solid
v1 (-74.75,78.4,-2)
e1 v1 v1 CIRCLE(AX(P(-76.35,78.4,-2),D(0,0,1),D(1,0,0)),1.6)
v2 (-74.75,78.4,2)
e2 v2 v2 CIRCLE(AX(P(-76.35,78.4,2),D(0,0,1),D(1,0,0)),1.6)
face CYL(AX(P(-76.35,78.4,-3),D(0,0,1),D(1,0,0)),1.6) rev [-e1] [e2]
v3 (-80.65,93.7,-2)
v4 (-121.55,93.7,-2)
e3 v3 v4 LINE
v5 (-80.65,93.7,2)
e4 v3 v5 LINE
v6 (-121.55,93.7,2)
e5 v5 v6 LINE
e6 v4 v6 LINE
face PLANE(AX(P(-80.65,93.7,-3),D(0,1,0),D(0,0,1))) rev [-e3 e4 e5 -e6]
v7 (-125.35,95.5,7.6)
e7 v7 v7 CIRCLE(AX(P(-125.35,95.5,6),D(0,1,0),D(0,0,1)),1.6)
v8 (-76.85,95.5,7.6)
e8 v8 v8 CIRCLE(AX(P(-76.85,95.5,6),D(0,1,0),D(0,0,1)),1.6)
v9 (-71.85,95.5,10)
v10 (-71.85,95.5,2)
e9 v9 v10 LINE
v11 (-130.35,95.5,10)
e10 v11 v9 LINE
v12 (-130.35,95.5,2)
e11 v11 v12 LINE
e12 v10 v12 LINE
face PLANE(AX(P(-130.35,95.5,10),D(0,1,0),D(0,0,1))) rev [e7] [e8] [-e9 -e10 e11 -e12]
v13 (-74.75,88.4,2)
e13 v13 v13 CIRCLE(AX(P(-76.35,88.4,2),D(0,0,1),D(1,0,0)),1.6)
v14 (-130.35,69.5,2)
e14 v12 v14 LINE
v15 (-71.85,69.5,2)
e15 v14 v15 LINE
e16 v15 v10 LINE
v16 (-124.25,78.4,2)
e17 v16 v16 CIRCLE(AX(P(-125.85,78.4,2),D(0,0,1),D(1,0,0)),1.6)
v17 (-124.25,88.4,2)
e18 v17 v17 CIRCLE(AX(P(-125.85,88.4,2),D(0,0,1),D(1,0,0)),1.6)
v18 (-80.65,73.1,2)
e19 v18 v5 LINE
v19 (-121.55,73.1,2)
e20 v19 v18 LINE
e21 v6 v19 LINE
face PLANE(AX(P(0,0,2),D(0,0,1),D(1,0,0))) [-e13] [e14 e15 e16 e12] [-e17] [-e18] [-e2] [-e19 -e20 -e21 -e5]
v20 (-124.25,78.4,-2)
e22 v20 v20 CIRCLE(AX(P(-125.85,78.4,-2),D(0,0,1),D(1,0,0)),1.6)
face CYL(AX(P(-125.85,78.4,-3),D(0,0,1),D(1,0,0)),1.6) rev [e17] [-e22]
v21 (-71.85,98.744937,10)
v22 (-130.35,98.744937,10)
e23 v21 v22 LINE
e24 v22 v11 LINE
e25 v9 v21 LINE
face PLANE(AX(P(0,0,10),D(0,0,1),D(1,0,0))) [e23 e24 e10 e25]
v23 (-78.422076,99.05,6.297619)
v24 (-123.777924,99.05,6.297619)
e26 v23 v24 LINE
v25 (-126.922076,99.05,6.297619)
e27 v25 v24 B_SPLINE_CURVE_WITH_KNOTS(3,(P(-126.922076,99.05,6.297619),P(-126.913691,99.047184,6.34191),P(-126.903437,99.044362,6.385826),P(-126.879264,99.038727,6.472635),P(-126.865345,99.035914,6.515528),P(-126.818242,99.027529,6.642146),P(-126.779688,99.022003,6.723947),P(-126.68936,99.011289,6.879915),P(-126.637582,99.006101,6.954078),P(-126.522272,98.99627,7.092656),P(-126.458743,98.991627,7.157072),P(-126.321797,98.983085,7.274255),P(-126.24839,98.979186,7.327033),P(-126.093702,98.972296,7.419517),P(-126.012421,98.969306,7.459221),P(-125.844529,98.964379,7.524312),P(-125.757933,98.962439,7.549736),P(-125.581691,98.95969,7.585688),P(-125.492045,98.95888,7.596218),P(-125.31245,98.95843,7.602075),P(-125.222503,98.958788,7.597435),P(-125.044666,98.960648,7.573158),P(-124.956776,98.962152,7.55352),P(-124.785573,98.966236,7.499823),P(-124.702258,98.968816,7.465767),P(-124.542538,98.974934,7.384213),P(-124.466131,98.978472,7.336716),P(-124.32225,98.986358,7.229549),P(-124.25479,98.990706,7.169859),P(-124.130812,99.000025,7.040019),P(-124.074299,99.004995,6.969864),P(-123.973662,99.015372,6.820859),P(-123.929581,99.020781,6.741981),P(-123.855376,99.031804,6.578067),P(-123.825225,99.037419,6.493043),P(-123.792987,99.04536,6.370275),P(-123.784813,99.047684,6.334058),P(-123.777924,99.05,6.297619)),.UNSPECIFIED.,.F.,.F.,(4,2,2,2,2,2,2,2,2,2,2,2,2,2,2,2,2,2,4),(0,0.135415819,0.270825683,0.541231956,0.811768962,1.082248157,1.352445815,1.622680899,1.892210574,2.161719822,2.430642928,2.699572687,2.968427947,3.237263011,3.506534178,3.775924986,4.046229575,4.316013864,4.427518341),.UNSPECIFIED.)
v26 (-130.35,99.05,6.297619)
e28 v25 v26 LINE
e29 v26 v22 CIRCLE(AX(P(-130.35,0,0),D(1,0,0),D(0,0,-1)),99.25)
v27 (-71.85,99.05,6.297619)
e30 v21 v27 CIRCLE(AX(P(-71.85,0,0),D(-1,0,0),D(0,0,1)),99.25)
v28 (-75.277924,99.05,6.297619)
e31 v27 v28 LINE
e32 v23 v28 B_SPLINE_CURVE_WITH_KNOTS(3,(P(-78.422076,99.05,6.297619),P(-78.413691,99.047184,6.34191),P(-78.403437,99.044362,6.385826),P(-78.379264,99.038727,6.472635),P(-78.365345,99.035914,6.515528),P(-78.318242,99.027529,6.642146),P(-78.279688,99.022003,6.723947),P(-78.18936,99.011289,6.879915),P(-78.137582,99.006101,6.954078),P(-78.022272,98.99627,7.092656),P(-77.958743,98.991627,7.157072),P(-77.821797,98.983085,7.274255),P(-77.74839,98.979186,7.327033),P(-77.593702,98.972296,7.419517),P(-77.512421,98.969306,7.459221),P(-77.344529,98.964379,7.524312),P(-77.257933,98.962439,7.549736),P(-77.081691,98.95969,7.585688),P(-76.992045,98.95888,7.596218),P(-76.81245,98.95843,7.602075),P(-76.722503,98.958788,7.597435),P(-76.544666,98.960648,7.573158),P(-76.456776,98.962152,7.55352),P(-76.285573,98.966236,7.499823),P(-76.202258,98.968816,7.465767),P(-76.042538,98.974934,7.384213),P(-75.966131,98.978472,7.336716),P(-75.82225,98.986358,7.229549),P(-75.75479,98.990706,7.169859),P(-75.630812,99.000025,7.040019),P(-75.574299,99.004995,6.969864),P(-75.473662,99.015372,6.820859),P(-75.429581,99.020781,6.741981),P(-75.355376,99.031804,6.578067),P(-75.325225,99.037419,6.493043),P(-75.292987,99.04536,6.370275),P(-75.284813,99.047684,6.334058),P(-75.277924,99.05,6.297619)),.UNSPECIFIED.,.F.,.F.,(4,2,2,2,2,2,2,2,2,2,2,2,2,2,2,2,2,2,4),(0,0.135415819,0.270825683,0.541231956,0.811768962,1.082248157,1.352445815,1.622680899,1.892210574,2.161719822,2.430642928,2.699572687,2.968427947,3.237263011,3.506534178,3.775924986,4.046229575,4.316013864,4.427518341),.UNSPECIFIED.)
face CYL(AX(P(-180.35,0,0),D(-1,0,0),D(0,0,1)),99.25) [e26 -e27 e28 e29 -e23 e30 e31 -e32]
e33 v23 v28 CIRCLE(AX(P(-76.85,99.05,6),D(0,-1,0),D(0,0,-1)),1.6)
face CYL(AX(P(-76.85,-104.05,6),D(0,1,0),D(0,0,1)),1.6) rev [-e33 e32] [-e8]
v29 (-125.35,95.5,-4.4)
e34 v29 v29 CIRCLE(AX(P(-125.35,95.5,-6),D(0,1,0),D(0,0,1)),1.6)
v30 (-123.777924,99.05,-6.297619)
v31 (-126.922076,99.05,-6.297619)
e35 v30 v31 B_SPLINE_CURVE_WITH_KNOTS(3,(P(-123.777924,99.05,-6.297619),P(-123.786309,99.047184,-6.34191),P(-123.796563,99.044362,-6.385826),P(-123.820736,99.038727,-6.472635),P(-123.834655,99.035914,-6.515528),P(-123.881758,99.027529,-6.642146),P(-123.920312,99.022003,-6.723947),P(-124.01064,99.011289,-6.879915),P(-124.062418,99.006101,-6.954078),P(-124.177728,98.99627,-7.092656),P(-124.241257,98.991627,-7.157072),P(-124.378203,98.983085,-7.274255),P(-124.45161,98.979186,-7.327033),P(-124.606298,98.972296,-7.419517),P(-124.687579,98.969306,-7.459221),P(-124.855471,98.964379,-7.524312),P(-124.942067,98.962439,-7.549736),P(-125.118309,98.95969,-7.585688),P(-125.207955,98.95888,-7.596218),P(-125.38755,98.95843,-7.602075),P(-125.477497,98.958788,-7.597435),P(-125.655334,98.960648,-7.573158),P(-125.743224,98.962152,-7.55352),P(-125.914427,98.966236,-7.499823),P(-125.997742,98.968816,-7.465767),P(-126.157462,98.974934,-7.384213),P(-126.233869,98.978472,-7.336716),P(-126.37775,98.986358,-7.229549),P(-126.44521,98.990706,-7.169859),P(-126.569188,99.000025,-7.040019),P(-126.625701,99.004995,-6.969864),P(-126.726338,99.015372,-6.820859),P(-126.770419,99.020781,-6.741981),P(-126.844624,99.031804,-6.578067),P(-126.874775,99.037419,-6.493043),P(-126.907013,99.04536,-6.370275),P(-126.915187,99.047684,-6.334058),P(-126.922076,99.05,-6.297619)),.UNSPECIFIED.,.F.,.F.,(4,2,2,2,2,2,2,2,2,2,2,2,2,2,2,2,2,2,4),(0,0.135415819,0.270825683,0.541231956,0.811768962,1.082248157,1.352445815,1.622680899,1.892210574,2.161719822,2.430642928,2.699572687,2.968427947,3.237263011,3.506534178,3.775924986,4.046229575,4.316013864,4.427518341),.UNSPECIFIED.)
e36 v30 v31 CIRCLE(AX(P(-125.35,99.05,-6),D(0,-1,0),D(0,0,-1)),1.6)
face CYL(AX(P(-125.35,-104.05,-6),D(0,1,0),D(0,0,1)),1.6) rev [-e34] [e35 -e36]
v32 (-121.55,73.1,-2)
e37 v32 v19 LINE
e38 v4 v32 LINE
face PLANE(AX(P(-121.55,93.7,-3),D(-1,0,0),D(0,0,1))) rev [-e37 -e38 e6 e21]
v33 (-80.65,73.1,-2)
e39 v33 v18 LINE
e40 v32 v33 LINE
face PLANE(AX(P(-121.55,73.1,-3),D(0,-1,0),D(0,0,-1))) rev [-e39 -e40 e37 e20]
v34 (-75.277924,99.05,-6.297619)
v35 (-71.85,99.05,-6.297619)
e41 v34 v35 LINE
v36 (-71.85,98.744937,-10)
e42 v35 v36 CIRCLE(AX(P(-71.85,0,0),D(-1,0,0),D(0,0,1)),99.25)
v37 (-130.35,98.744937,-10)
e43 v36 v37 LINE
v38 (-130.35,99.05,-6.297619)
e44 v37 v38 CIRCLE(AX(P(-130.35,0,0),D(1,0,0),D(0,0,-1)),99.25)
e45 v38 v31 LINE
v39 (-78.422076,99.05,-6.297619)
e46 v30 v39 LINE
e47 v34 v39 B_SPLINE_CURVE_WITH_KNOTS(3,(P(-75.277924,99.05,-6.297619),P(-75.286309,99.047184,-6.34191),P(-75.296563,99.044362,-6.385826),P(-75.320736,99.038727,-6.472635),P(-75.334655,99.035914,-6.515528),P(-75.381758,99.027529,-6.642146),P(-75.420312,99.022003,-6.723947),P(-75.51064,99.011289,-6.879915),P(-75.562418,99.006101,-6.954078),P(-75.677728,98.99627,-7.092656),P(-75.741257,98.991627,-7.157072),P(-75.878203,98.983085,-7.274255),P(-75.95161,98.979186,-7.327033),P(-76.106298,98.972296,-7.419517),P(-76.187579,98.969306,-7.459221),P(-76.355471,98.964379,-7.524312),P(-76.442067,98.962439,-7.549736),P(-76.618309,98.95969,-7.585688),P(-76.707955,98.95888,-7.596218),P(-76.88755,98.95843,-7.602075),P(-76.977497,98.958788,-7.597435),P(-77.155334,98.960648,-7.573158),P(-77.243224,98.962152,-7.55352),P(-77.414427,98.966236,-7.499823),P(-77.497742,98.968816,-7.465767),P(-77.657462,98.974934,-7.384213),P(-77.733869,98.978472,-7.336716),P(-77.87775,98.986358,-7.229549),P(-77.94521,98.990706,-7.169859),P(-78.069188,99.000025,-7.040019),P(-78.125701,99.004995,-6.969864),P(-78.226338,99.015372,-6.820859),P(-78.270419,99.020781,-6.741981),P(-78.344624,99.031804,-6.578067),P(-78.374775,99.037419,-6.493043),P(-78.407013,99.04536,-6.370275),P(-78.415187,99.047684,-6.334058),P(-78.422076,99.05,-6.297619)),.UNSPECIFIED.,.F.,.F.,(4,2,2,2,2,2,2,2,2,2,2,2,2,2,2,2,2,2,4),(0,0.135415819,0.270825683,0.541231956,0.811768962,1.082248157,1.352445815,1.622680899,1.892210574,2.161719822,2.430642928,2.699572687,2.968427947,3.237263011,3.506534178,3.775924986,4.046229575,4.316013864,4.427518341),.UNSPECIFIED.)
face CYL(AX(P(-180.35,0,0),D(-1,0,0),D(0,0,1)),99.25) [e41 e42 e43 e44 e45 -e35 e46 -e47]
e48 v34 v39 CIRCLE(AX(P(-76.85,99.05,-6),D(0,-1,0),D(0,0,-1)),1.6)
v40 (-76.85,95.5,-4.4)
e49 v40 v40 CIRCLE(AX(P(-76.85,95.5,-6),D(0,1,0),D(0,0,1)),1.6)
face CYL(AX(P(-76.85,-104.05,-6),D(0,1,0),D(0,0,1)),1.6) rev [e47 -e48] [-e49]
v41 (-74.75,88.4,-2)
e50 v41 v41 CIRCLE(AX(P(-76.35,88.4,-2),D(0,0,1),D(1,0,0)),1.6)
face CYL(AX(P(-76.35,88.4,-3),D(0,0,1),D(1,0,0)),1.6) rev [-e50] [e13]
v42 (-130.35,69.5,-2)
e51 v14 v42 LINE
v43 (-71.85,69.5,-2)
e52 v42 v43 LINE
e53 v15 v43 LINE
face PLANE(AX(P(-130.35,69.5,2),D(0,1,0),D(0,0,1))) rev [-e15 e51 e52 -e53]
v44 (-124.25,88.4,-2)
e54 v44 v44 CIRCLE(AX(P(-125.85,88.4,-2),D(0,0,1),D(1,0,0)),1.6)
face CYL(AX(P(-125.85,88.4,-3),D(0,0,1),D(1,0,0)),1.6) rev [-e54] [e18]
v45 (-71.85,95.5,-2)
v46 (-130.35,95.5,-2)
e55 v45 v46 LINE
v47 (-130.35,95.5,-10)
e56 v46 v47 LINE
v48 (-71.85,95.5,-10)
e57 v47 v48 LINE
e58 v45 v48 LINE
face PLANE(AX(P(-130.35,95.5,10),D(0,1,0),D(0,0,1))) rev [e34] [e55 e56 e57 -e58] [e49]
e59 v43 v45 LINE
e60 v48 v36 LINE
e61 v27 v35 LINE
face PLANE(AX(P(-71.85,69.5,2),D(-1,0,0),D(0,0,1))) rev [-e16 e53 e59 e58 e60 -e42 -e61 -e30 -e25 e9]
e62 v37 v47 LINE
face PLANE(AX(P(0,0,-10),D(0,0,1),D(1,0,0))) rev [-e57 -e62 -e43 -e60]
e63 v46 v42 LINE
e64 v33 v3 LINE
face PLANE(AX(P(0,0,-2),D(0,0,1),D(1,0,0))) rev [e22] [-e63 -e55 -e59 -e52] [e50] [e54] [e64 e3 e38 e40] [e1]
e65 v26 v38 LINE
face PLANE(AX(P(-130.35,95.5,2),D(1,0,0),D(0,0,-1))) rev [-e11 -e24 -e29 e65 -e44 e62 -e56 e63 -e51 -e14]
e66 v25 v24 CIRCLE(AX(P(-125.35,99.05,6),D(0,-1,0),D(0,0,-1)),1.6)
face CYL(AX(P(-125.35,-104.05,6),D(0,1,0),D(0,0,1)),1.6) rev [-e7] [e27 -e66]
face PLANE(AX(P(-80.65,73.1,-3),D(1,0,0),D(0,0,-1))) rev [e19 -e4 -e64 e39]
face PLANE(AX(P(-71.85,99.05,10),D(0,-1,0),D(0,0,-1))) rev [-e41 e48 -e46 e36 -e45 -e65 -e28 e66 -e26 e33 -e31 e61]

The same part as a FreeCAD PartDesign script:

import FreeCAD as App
import Part
import Sketcher
from FreeCAD import Vector
Q = App.Units.Quantity

doc = App.newDocument("Part")
body = doc.addObject("PartDesign::Body", "Body")

sketch1 = doc.addObject("Sketcher::SketchObject", "Sketch")
body.addObject(sketch1)
sketch1.AttachmentSupport = (doc.XY_Plane, [""])
sketch1.MapMode = "FlatFace"
sketch1.addGeometry([
    Part.LineSegment(Vector(-130, 96, 0), Vector(-130, 70, 0)),
    Part.LineSegment(Vector(-130, 70, 0), Vector(-72, 70, 0)),
    Part.LineSegment(Vector(-72, 70, 0), Vector(-72, 96, 0)),
    Part.LineSegment(Vector(-72, 96, 0), Vector(-130, 96, 0)),
], False)
sketch1.addConstraint([
    Sketcher.Constraint("Coincident", 0, 2, 1, 1),
    Sketcher.Constraint("Coincident", 1, 2, 2, 1),
    Sketcher.Constraint("Coincident", 2, 2, 3, 1),
    Sketcher.Constraint("Coincident", 3, 2, 0, 1),
    Sketcher.Constraint("Vertical", 0),
    Sketcher.Constraint("Horizontal", 1),
    Sketcher.Constraint("Vertical", 2),
    Sketcher.Constraint("Horizontal", 3),
    Sketcher.Constraint("DistanceY", 0, 2, 0, 1, Q("26 mm")),
    Sketcher.Constraint("DistanceX", 1, 1, 1, 2, Q("58.5 mm")),
    Sketcher.Constraint("DistanceY", -1, 1, 0, 2, Q("69.5 mm")),
    Sketcher.Constraint("DistanceX", 0, 2, -1, 1, Q("130.35 mm")),
])
pad1 = doc.addObject("PartDesign::Pad", "Pad")
body.addObject(pad1)
pad1.Profile = sketch1
pad1.Length = 4
pad1.Midplane = True

sketch2 = doc.addObject("Sketcher::SketchObject", "Sketch001")
body.addObject(sketch2)
sketch2.AttachmentSupport = (doc.XY_Plane, [""])
sketch2.MapMode = "FlatFace"
sketch2.addGeometry([
    Part.LineSegment(Vector(-130.3, 99, 0), Vector(-130.3, 95.5, 0)),
    Part.LineSegment(Vector(-130.3, 95.5, 0), Vector(-71.8, 95.5, 0)),
    Part.LineSegment(Vector(-71.8, 95.5, 0), Vector(-71.8, 99, 0)),
    Part.LineSegment(Vector(-71.8, 99, 0), Vector(-130.3, 99, 0)),
], False)
sketch2.addConstraint([
    Sketcher.Constraint("Coincident", 0, 2, 1, 1),
    Sketcher.Constraint("Coincident", 1, 2, 2, 1),
    Sketcher.Constraint("Coincident", 2, 2, 3, 1),
    Sketcher.Constraint("Coincident", 3, 2, 0, 1),
    Sketcher.Constraint("Vertical", 0),
    Sketcher.Constraint("Horizontal", 1),
    Sketcher.Constraint("Vertical", 2),
    Sketcher.Constraint("Horizontal", 3),
    Sketcher.Constraint("DistanceX", 1, 1, 1, 2, Q("58.5 mm")),
    Sketcher.Constraint("DistanceY", 0, 2, 0, 1, Q("3.55 mm")),
    Sketcher.Constraint("DistanceY", -1, 1, 0, 2, Q("95.5 mm")),
    Sketcher.Constraint("DistanceX", 0, 2, -1, 1, Q("130.35 mm")),
])
pad2 = doc.addObject("PartDesign::Pad", "Pad001")
body.addObject(pad2)
pad2.Profile = sketch2
pad2.Length = 20
pad2.Midplane = True

sketch3 = doc.addObject("Sketcher::SketchObject", "Sketch002")
body.addObject(sketch3)
sketch3.AttachmentSupport = (doc.XY_Plane, [""])
sketch3.MapMode = "FlatFace"
sketch3.addGeometry([
    Part.LineSegment(Vector(-131.3, 101, 0), Vector(-131.3, 99.2, 0)),
    Part.LineSegment(Vector(-131.3, 99.2, 0), Vector(-70.8, 99.2, 0)),
    Part.LineSegment(Vector(-70.8, 99.2, 0), Vector(-70.8, 101, 0)),
    Part.LineSegment(Vector(-70.8, 101, 0), Vector(-131.3, 101, 0)),
], False)
sketch3.addConstraint([
    Sketcher.Constraint("Coincident", 0, 2, 1, 1),
    Sketcher.Constraint("Coincident", 1, 2, 2, 1),
    Sketcher.Constraint("Coincident", 2, 2, 3, 1),
    Sketcher.Constraint("Coincident", 3, 2, 0, 1),
    Sketcher.Constraint("Vertical", 0),
    Sketcher.Constraint("Horizontal", 1),
    Sketcher.Constraint("Vertical", 2),
    Sketcher.Constraint("Horizontal", 3),
    Sketcher.Constraint("DistanceX", 1, 1, 1, 2, Q("60.5 mm")),
    Sketcher.Constraint("DistanceY", 0, 2, 0, 1, Q("1.8 mm")),
    Sketcher.Constraint("DistanceX", 0, 2, -1, 1, Q("131.35 mm")),
    Sketcher.Constraint("DistanceY", -1, 1, 0, 2, Q("99.25 mm")),
])
groove = doc.addObject("PartDesign::Groove", "Groove")
body.addObject(groove)
groove.Profile = sketch3
groove.ReferenceAxis = (sketch3, ["H_Axis"])
groove.Angle = 360

sketch4 = doc.addObject("Sketcher::SketchObject", "Sketch003")
body.addObject(sketch4)
sketch4.AttachmentSupport = (doc.XY_Plane, [""])
sketch4.MapMode = "FlatFace"
sketch4.addGeometry([
    Part.LineSegment(Vector(-122, 94, 0), Vector(-122, 73, 0)),
    Part.LineSegment(Vector(-122, 73, 0), Vector(-81, 73, 0)),
    Part.LineSegment(Vector(-81, 73, 0), Vector(-81, 94, 0)),
    Part.LineSegment(Vector(-81, 94, 0), Vector(-122, 94, 0)),
], False)
sketch4.addConstraint([
    Sketcher.Constraint("Coincident", 0, 2, 1, 1),
    Sketcher.Constraint("Coincident", 1, 2, 2, 1),
    Sketcher.Constraint("Coincident", 2, 2, 3, 1),
    Sketcher.Constraint("Coincident", 3, 2, 0, 1),
    Sketcher.Constraint("Vertical", 0),
    Sketcher.Constraint("Horizontal", 1),
    Sketcher.Constraint("Vertical", 2),
    Sketcher.Constraint("Horizontal", 3),
    Sketcher.Constraint("DistanceX", 1, 1, 1, 2, Q("40.9 mm")),
    Sketcher.Constraint("DistanceY", 0, 2, 0, 1, Q("20.6 mm")),
    Sketcher.Constraint("DistanceY", -1, 1, 0, 2, Q("73.1 mm")),
    Sketcher.Constraint("DistanceX", 0, 2, -1, 1, Q("121.55 mm")),
])
pocket1 = doc.addObject("PartDesign::Pocket", "Pocket")
body.addObject(pocket1)
pocket1.Profile = sketch4
pocket1.Length = 6
pocket1.Midplane = True

sketch5 = doc.addObject("Sketcher::SketchObject", "Sketch004")
body.addObject(sketch5)
sketch5.AttachmentSupport = (doc.XY_Plane, [""])
sketch5.MapMode = "FlatFace"
sketch5.addGeometry([
    Part.Circle(Vector(-125.8, 78.4, 0), Vector(0, 0, 1), 1.6),
    Part.Circle(Vector(-125.8, 88.4, 0), Vector(0, 0, 1), 1.6),
    Part.Circle(Vector(-76.3, 78.4, 0), Vector(0, 0, 1), 1.6),
    Part.Circle(Vector(-76.3, 88.4, 0), Vector(0, 0, 1), 1.6),
], False)
sketch5.addConstraint([
    Sketcher.Constraint("Equal", 0, 1),
    Sketcher.Constraint("Equal", 1, 2),
    Sketcher.Constraint("Equal", 2, 3),
    Sketcher.Constraint("Horizontal", 0, 3, 2, 3),
    Sketcher.Constraint("Horizontal", 1, 3, 3, 3),
    Sketcher.Constraint("Vertical", 0, 3, 1, 3),
    Sketcher.Constraint("Vertical", 2, 3, 3, 3),
    Sketcher.Constraint("Diameter", 0, Q("3.2 mm")),
    Sketcher.Constraint("DistanceY", 0, 3, 1, 3, Q("10 mm")),
    Sketcher.Constraint("DistanceY", -1, 1, 0, 3, Q("78.4 mm")),
    Sketcher.Constraint("DistanceX", 0, 3, 2, 3, Q("49.5 mm")),
    Sketcher.Constraint("DistanceX", 0, 3, -1, 1, Q("125.85 mm")),
])
pocket2 = doc.addObject("PartDesign::Pocket", "Pocket001")
body.addObject(pocket2)
pocket2.Profile = sketch5
pocket2.Length = 6
pocket2.Midplane = True

sketch6 = doc.addObject("Sketcher::SketchObject", "Sketch005")
body.addObject(sketch6)
sketch6.AttachmentSupport = (doc.XZ_Plane, [""])
sketch6.MapMode = "FlatFace"
sketch6.addGeometry([
    Part.Circle(Vector(-125.3, 6, 0), Vector(0, 0, 1), 1.6),
    Part.Circle(Vector(-125.3, -6, 0), Vector(0, 0, 1), 1.6),
    Part.Circle(Vector(-76.8, 6, 0), Vector(0, 0, 1), 1.6),
    Part.Circle(Vector(-76.8, -6, 0), Vector(0, 0, 1), 1.6),
], False)
sketch6.addConstraint([
    Sketcher.Constraint("Equal", 0, 1),
    Sketcher.Constraint("Equal", 1, 2),
    Sketcher.Constraint("Equal", 2, 3),
    Sketcher.Constraint("Symmetric", 0, 3, 1, 3, -1),
    Sketcher.Constraint("Symmetric", 2, 3, 3, 3, -1),
    Sketcher.Constraint("Horizontal", 0, 3, 2, 3),
    Sketcher.Constraint("Diameter", 0, Q("3.2 mm")),
    Sketcher.Constraint("DistanceY", -1, 1, 0, 3, Q("6 mm")),
    Sketcher.Constraint("DistanceX", 0, 3, 2, 3, Q("48.5 mm")),
    Sketcher.Constraint("DistanceX", 0, 3, -1, 1, Q("125.35 mm")),
])
pocket3 = doc.addObject("PartDesign::Pocket", "Pocket002")
body.addObject(pocket3)
pocket3.Profile = sketch6
pocket3.Length = 208.1
pocket3.Midplane = True

doc.recompute()
